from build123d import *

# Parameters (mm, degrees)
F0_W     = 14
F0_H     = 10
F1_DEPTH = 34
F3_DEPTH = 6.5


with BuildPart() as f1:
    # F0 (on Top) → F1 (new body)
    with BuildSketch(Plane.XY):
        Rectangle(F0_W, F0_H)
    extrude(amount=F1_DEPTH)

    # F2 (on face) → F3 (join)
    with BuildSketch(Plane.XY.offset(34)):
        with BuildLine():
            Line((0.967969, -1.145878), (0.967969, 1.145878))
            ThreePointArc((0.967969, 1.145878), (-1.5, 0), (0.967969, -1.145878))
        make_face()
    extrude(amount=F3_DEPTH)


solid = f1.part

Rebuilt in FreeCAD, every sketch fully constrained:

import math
import FreeCAD as App
import Part
import Sketcher

V = App.Vector
Q = App.Units.Quantity


def add_polygon(sketch, points):
    """Adds a closed chain of lines whose ends are joined by coincident constraints."""
    first, n = sketch.GeometryCount, len(points)
    for a, b in zip(points, points[1:] + points[:1]):
        sketch.addGeometry(Part.LineSegment(App.Vector(*a, 0), App.Vector(*b, 0)), False)
    for i in range(n):
        sketch.addConstraint(Sketcher.Constraint("Coincident", first + i, 2, first + (i + 1) % n, 1))

doc = App.newDocument("Part")
params = doc.addObject("Spreadsheet::Sheet", "Params")
for row, (alias, value) in enumerate([
    ("sketch1_width", "14 mm"),
    ("sketch1_height", "10 mm"),
    ("pad1_length", "34 mm"),
    ("sketch2_radius", "1.5 mm"),
    ("pad2_length", "6.5 mm"),
], start=1):
    params.set(f"A{row}", alias)
    params.set(f"B{row}", "=" + value)
    params.setAlias(f"B{row}", alias)

body = doc.addObject("PartDesign::Body", "Body")

sketch1 = body.newObject("Sketcher::SketchObject", "Sketch")
sketch1.AttachmentSupport = (doc.getObject("XY_Plane"), [""])
sketch1.MapMode = "FlatFace"
add_polygon(sketch1, [(-7, 5), (-7, -5), (7, -5), (7, 5)])
sketch1.addConstraint([
    Sketcher.Constraint("Vertical", 0),
    Sketcher.Constraint("Horizontal", 1),
    Sketcher.Constraint("Vertical", 2),
    Sketcher.Constraint("Horizontal", 3),
    Sketcher.Constraint("Symmetric", 0, 2, 2, 2, -1, 1),
    Sketcher.Constraint("DistanceX", 1, 1, 1, 2, Q("14 mm")),
    Sketcher.Constraint("DistanceY", 0, 2, 0, 1, Q("10 mm")),
])
sketch1.setExpression("Constraints[9]", "Params.sketch1_width")
sketch1.setExpression("Constraints[10]", "Params.sketch1_height")
pad1 = body.newObject("PartDesign::Pad", "Pad")
pad1.Profile = sketch1
pad1.setExpression("Length", "Params.pad1_length")

sketch2 = body.newObject("Sketcher::SketchObject", "Sketch001")
sketch2.AttachmentSupport = (doc.getObject("XY_Plane"), [""])
sketch2.MapMode = "FlatFace"
sketch2.AttachmentOffset = App.Placement(V(0, 0, 34), App.Rotation())
sketch2.addGeometry([
    Part.LineSegment(V(1, -1.1, 0), V(1, 1.1, 0)),
    Part.ArcOfCircle(Part.Circle(V(0, 0, 0), V(0, 0, 1), 1.5), math.radians(50), math.radians(310)),
], False)
sketch2.addConstraint([
    Sketcher.Constraint("Coincident", 0, 1, 1, 2),
    Sketcher.Constraint("Coincident", 1, 1, 0, 2),
    Sketcher.Constraint("Vertical", 0),
    Sketcher.Constraint("Coincident", 1, 3, -1, 1),
    Sketcher.Constraint("Radius", 1, Q("1.5 mm")),
    Sketcher.Constraint("DistanceY", 0, 1, 0, 2, Q("2.291756 mm")),
])
sketch2.setExpression("Constraints[4]", "Params.sketch2_radius")
pad2 = body.newObject("PartDesign::Pad", "Pad001")
pad2.Profile = sketch2
pad2.setExpression("Length", "Params.pad2_length")

doc.recompute()
